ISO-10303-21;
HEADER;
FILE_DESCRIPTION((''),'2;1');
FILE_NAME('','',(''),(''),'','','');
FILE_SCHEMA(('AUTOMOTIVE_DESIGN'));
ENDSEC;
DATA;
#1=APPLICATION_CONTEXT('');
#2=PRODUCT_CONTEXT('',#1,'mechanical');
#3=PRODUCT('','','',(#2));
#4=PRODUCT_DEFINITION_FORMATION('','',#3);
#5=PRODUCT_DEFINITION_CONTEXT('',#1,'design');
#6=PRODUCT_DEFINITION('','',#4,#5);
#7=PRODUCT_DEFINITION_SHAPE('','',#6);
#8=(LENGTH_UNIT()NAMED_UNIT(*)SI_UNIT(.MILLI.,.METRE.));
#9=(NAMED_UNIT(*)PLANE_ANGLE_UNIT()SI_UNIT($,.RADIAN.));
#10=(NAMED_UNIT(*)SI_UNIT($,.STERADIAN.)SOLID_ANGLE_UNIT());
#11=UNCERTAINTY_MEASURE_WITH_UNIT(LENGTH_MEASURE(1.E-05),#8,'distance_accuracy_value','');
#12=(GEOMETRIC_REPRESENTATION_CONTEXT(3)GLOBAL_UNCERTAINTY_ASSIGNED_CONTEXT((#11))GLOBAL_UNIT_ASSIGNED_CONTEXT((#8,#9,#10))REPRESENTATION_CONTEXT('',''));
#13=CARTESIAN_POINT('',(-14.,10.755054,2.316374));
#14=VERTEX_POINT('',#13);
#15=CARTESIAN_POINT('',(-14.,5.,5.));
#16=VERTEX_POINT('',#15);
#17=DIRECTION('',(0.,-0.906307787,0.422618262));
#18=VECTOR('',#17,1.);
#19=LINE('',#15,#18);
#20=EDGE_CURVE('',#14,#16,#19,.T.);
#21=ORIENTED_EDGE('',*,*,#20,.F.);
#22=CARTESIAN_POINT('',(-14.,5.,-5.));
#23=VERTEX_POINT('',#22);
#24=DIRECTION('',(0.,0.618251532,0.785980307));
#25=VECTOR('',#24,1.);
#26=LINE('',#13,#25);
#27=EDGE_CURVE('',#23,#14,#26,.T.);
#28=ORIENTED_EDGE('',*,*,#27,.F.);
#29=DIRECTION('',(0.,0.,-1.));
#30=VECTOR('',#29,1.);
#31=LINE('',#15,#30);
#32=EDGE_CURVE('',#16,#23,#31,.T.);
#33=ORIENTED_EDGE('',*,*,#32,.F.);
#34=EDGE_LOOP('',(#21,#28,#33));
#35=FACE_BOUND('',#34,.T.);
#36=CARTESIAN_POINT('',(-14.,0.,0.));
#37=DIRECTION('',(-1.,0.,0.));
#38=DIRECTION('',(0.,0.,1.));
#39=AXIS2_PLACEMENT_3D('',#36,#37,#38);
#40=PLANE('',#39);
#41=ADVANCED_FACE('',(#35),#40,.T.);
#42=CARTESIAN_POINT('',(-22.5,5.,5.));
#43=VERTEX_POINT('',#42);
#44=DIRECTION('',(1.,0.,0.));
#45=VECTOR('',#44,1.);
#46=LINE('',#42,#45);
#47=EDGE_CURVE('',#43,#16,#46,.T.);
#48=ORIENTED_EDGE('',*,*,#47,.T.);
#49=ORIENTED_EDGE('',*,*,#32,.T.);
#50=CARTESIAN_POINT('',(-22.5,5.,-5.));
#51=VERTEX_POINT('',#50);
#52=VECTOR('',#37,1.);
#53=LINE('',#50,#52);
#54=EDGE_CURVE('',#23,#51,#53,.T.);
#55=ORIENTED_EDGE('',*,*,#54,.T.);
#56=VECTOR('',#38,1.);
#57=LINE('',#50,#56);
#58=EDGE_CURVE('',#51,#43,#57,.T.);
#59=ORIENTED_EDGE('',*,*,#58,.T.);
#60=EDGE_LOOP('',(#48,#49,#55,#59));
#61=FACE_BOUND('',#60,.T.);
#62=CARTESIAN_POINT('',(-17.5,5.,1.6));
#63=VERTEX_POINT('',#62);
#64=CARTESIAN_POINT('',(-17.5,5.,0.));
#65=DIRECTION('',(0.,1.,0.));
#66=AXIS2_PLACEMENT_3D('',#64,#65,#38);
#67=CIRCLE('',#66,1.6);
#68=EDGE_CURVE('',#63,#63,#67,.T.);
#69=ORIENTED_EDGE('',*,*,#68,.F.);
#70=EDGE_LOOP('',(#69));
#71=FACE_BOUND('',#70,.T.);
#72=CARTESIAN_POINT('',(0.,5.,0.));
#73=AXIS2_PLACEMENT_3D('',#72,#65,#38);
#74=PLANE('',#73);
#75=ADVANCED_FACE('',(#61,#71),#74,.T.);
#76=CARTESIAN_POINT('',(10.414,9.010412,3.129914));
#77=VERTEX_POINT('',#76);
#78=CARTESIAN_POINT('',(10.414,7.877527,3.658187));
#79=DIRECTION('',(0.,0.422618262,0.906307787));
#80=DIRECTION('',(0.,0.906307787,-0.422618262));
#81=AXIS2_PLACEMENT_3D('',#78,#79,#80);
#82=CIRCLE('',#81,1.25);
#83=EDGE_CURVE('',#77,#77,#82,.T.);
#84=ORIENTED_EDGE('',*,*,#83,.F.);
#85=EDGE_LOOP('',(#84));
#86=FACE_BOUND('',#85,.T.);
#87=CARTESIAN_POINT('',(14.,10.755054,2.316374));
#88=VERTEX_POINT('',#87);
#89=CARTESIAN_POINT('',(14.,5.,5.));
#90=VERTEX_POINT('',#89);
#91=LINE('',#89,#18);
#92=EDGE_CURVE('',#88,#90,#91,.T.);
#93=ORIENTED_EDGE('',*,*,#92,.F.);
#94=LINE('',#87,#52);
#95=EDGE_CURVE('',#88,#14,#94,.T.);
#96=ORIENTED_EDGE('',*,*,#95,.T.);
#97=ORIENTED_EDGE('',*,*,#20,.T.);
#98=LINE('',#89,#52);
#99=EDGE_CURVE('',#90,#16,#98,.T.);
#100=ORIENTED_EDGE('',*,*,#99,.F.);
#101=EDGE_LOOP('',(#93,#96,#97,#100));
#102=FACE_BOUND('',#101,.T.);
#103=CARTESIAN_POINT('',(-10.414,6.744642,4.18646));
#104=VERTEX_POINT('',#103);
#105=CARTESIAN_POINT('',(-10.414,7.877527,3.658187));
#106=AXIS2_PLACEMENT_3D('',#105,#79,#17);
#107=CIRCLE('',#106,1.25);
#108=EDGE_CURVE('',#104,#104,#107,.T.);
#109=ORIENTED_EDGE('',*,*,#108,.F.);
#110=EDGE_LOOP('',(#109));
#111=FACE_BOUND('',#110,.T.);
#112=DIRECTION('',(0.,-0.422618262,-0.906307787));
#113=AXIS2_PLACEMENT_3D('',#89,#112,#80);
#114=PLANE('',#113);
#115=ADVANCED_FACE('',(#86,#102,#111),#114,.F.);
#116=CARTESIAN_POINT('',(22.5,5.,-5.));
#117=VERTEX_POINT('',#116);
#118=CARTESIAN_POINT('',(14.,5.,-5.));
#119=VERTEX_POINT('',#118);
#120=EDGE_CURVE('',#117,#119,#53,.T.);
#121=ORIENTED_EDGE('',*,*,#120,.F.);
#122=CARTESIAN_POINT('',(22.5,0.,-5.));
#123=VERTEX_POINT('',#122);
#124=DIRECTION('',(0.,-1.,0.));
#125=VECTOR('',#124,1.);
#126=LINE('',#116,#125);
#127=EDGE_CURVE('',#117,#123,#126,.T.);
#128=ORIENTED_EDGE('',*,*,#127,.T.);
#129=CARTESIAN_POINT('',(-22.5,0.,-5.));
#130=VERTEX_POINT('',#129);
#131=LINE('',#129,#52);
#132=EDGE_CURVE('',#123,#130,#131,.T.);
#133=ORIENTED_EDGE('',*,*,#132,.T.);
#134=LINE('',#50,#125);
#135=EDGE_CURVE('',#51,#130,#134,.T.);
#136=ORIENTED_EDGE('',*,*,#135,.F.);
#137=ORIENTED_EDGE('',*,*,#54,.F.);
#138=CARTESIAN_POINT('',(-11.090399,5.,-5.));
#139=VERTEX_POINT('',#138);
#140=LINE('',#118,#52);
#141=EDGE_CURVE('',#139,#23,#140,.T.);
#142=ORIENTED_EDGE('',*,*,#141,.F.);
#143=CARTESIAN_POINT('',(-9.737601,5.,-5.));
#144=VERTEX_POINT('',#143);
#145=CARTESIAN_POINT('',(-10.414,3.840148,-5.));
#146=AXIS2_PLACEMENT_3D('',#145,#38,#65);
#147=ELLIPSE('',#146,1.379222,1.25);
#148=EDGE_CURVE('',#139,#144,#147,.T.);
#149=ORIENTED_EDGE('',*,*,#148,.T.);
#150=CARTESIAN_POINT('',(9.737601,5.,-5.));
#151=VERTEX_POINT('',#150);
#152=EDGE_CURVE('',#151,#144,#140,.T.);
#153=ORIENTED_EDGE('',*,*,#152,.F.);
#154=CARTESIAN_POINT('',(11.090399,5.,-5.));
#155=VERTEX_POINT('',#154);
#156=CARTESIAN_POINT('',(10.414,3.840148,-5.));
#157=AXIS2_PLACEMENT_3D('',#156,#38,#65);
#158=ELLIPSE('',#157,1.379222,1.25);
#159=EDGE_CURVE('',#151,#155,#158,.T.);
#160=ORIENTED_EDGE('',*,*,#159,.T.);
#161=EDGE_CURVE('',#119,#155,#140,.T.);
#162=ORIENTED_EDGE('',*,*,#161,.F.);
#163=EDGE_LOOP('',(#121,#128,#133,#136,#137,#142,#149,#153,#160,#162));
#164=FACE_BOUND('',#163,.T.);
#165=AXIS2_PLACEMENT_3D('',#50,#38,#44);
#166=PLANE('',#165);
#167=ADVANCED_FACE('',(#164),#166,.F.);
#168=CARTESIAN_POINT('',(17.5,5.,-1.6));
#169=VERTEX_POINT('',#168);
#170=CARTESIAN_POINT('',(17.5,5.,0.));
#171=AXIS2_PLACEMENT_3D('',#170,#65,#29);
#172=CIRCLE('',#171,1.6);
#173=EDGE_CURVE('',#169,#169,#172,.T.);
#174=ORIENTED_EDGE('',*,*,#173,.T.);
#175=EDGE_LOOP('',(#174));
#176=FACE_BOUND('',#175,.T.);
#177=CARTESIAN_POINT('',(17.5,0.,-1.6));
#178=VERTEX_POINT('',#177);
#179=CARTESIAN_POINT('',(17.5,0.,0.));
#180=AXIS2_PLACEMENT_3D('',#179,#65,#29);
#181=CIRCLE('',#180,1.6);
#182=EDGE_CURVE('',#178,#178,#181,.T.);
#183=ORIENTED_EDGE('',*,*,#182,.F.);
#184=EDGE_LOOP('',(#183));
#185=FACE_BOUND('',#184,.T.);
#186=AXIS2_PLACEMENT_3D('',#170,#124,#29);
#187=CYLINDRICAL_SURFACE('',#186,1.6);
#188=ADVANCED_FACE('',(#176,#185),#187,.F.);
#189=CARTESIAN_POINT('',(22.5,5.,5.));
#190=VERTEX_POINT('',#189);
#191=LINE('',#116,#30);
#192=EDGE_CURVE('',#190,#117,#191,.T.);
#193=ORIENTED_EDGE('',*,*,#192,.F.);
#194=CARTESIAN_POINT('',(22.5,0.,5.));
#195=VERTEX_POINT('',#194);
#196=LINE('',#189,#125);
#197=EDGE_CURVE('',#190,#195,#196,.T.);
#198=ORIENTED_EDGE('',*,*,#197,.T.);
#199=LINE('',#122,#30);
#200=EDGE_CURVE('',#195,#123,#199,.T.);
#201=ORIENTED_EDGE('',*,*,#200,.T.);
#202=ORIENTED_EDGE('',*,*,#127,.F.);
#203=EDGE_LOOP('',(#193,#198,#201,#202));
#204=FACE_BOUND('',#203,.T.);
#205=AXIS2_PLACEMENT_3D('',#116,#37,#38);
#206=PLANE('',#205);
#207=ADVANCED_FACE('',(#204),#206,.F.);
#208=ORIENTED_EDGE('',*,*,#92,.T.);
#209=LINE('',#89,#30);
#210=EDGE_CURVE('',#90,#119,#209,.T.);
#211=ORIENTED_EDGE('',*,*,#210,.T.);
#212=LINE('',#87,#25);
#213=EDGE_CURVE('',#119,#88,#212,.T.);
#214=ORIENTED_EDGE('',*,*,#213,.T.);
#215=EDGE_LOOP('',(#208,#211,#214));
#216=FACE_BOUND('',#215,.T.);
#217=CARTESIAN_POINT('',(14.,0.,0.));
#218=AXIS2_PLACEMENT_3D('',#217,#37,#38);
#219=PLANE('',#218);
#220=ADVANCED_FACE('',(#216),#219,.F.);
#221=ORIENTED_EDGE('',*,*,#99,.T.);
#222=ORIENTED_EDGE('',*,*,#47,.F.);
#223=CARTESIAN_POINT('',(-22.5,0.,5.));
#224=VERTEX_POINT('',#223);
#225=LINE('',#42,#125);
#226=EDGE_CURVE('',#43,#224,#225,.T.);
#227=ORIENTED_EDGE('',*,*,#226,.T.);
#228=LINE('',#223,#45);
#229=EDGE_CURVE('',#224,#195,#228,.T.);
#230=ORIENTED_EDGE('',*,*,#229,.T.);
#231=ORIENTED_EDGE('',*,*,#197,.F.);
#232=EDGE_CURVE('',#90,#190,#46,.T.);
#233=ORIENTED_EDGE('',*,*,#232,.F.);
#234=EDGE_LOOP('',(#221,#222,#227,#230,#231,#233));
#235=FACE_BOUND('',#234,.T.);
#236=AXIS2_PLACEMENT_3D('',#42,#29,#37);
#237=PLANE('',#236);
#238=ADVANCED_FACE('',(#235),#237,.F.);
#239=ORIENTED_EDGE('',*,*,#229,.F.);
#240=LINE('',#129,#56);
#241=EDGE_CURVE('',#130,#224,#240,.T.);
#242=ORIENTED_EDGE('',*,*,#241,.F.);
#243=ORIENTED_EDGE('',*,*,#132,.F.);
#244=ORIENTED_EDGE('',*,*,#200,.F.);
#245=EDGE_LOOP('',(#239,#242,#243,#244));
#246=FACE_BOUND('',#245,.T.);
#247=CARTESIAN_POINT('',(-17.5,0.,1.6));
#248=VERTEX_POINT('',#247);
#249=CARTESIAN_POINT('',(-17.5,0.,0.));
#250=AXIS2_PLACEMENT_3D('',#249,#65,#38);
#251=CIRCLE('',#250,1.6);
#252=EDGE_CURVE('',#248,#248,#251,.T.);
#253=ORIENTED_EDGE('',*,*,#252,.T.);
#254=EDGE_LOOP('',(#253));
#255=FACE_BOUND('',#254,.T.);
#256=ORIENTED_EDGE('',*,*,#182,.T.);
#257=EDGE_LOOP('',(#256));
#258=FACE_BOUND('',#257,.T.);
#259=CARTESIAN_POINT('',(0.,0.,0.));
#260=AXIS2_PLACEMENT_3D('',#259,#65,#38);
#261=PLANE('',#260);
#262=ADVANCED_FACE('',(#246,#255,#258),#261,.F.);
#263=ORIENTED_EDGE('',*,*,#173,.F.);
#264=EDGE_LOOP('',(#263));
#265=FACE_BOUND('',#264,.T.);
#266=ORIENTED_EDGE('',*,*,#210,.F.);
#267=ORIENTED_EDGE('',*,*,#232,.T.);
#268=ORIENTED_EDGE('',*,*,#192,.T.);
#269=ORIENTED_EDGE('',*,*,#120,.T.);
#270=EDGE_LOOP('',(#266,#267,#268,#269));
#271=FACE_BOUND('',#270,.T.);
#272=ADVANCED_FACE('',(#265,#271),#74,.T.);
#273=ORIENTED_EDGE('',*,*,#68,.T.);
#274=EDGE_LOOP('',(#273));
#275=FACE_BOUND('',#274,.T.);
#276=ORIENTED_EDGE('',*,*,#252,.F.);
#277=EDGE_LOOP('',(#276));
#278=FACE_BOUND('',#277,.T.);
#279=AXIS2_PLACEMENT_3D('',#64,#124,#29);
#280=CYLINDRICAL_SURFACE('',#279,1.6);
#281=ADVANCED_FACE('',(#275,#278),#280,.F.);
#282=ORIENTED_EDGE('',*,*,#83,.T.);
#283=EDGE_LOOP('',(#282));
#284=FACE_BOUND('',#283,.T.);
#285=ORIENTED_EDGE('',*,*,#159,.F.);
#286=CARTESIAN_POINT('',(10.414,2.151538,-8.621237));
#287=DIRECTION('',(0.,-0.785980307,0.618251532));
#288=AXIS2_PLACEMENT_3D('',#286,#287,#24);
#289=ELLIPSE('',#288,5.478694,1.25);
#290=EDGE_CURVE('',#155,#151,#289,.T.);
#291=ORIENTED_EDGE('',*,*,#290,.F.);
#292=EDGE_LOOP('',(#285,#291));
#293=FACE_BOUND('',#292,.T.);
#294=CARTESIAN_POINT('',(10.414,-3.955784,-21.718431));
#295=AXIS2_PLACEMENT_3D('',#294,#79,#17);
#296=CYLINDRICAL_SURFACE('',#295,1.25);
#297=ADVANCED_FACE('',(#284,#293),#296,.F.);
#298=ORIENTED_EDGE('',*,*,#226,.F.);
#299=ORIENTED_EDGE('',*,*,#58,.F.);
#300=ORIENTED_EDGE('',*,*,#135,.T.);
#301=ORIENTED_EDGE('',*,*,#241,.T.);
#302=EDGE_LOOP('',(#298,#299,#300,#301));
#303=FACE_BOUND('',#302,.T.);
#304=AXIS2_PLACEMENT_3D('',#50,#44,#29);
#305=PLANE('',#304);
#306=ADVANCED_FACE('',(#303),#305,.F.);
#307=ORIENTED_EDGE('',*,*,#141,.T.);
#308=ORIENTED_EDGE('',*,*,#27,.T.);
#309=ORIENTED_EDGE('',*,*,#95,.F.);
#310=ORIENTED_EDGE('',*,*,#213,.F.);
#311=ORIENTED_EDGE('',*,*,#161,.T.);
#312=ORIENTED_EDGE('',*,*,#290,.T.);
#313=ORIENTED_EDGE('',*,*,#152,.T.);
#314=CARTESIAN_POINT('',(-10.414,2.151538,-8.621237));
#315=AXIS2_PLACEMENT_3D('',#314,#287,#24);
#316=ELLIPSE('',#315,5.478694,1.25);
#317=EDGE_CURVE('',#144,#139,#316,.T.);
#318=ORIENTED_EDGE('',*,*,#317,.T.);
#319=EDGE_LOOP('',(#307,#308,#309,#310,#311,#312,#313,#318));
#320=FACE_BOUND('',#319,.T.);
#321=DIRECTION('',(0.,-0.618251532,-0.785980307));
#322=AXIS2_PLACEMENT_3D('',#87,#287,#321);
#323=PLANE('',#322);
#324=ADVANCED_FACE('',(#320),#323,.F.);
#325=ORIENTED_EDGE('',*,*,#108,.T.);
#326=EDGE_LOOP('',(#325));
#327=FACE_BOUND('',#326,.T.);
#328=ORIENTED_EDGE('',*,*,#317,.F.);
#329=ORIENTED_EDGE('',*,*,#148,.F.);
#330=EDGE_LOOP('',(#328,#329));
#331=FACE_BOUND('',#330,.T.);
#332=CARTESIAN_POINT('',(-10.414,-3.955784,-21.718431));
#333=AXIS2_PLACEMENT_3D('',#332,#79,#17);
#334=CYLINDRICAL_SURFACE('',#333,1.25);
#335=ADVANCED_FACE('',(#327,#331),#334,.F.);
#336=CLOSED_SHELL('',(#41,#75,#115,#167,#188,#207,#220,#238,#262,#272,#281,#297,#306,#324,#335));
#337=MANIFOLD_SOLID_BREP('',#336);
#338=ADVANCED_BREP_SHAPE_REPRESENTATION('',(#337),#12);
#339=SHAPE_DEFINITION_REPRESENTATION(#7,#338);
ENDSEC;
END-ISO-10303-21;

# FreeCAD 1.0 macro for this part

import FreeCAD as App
import Part
import Sketcher
from FreeCAD import Vector
Q = App.Units.Quantity

doc = App.newDocument("Part")
body = doc.addObject("PartDesign::Body", "Body")

sketch1 = body.newObject("Sketcher::SketchObject", "Sketch")
sketch1.AttachmentSupport = (doc.getObject("XZ_Plane"), [""])
sketch1.MapMode = "FlatFace"
sketch1.addGeometry(Part.LineSegment(Vector(-22.5, -5, 0), Vector(-22.5, 5, 0)), False)
sketch1.addGeometry(Part.LineSegment(Vector(-22.5, 5, 0), Vector(22.5, 5, 0)), False)
sketch1.addGeometry(Part.LineSegment(Vector(22.5, 5, 0), Vector(22.5, -5, 0)), False)
sketch1.addGeometry(Part.LineSegment(Vector(22.5, -5, 0), Vector(-22.5, -5, 0)), False)
sketch1.addGeometry(Part.Circle(Vector(-17.5, 0, 0), Vector(0, 0, 1), 1.6), False)
sketch1.addGeometry(Part.Circle(Vector(17.5, 0, 0), Vector(0, 0, 1), 1.6), False)
sketch1.addConstraint(Sketcher.Constraint("Coincident", 0, 2, 1, 1))
sketch1.addConstraint(Sketcher.Constraint("Coincident", 1, 2, 2, 1))
sketch1.addConstraint(Sketcher.Constraint("Coincident", 2, 2, 3, 1))
sketch1.addConstraint(Sketcher.Constraint("Coincident", 3, 2, 0, 1))
sketch1.addConstraint(Sketcher.Constraint("Vertical", 0))
sketch1.addConstraint(Sketcher.Constraint("Horizontal", 1))
sketch1.addConstraint(Sketcher.Constraint("Vertical", 2))
sketch1.addConstraint(Sketcher.Constraint("Horizontal", 3))
sketch1.addConstraint(Sketcher.Constraint("Equal", 4, 5))
sketch1.addConstraint(Sketcher.Constraint("Symmetric", 4, 3, 5, 3, -1, 1))
sketch1.addConstraint(Sketcher.Constraint("Symmetric", 0, 2, 2, 2, -1, 1))
sketch1.addConstraint(Sketcher.Constraint("PointOnObject", 4, 3, -1))
sketch1.addConstraint(Sketcher.Constraint("Diameter", 4, Q("3.2 mm")))
sketch1.addConstraint(Sketcher.Constraint("DistanceX", 1, 1, 1, 2, Q("45 mm")))
sketch1.addConstraint(Sketcher.Constraint("DistanceY", 0, 1, 0, 2, Q("10 mm")))
sketch1.addConstraint(Sketcher.Constraint("DistanceX", 4, 3, 5, 3, Q("35 mm")))
pad1 = body.newObject("PartDesign::Pad", "Pad")
pad1.Profile = sketch1
pad1.Length = 5
pad1.Reversed = True

sketch2 = body.newObject("Sketcher::SketchObject", "Sketch001")
sketch2.AttachmentSupport = (doc.getObject("YZ_Plane"), [""])
sketch2.MapMode = "FlatFace"
sketch2.addGeometry(Part.LineSegment(Vector(5, 5, 0), Vector(5, -5, 0)), False)
sketch2.addGeometry(Part.LineSegment(Vector(5, -5, 0), Vector(11, 2, 0)), False)
sketch2.addGeometry(Part.LineSegment(Vector(11, 2, 0), Vector(5, 5, 0)), False)
sketch2.addConstraint(Sketcher.Constraint("Coincident", 0, 2, 1, 1))
sketch2.addConstraint(Sketcher.Constraint("Coincident", 1, 2, 2, 1))
sketch2.addConstraint(Sketcher.Constraint("Coincident", 2, 2, 0, 1))
sketch2.addConstraint(Sketcher.Constraint("Vertical", 0))
sketch2.addConstraint(Sketcher.Constraint("DistanceY", 0, 2, 0, 1, Q("10 mm")))
sketch2.addConstraint(Sketcher.Constraint("Angle", 2, Q("155 deg")))
sketch2.addConstraint(Sketcher.Constraint("DistanceX", -1, 1, 0, 2, Q("5 mm")))
sketch2.addConstraint(Sketcher.Constraint("DistanceY", 0, 2, -1, 1, Q("5 mm")))
sketch2.addConstraint(Sketcher.Constraint("Distance", 2, Q("6.35 mm")))
pad2 = body.newObject("PartDesign::Pad", "Pad001")
pad2.Profile = sketch2
pad2.Length = 28
pad2.Midplane = True

sketch3 = body.newObject("Sketcher::SketchObject", "Sketch002")
sketch3.Placement = App.Placement(Vector(0, 2.808142, 6.02208), App.Rotation(Vector(1, 0, 0), Vector(0, 0.906307787, -0.422618262), Vector(0, 0.422618262, 0.906307787), "ZXY"))
sketch3.addGeometry(Part.Circle(Vector(-10.4, 5.6, 0), Vector(0, 0, 1), 1.2), False)
sketch3.addGeometry(Part.Circle(Vector(10.4, 5.6, 0), Vector(0, 0, 1), 1.2), False)
sketch3.addConstraint(Sketcher.Constraint("Equal", 0, 1))
sketch3.addConstraint(Sketcher.Constraint("Symmetric", 0, 3, 1, 3, -2))
sketch3.addConstraint(Sketcher.Constraint("Diameter", 0, Q("2.5 mm")))
sketch3.addConstraint(Sketcher.Constraint("DistanceX", 0, 3, -1, 1, Q("10.414 mm")))
sketch3.addConstraint(Sketcher.Constraint("DistanceY", -1, 1, 0, 3, Q("5.593448 mm")))
pocket1 = body.newObject("PartDesign::Pocket", "Pocket")
pocket1.Profile = sketch3
pocket1.Length = 28

doc.recompute()
